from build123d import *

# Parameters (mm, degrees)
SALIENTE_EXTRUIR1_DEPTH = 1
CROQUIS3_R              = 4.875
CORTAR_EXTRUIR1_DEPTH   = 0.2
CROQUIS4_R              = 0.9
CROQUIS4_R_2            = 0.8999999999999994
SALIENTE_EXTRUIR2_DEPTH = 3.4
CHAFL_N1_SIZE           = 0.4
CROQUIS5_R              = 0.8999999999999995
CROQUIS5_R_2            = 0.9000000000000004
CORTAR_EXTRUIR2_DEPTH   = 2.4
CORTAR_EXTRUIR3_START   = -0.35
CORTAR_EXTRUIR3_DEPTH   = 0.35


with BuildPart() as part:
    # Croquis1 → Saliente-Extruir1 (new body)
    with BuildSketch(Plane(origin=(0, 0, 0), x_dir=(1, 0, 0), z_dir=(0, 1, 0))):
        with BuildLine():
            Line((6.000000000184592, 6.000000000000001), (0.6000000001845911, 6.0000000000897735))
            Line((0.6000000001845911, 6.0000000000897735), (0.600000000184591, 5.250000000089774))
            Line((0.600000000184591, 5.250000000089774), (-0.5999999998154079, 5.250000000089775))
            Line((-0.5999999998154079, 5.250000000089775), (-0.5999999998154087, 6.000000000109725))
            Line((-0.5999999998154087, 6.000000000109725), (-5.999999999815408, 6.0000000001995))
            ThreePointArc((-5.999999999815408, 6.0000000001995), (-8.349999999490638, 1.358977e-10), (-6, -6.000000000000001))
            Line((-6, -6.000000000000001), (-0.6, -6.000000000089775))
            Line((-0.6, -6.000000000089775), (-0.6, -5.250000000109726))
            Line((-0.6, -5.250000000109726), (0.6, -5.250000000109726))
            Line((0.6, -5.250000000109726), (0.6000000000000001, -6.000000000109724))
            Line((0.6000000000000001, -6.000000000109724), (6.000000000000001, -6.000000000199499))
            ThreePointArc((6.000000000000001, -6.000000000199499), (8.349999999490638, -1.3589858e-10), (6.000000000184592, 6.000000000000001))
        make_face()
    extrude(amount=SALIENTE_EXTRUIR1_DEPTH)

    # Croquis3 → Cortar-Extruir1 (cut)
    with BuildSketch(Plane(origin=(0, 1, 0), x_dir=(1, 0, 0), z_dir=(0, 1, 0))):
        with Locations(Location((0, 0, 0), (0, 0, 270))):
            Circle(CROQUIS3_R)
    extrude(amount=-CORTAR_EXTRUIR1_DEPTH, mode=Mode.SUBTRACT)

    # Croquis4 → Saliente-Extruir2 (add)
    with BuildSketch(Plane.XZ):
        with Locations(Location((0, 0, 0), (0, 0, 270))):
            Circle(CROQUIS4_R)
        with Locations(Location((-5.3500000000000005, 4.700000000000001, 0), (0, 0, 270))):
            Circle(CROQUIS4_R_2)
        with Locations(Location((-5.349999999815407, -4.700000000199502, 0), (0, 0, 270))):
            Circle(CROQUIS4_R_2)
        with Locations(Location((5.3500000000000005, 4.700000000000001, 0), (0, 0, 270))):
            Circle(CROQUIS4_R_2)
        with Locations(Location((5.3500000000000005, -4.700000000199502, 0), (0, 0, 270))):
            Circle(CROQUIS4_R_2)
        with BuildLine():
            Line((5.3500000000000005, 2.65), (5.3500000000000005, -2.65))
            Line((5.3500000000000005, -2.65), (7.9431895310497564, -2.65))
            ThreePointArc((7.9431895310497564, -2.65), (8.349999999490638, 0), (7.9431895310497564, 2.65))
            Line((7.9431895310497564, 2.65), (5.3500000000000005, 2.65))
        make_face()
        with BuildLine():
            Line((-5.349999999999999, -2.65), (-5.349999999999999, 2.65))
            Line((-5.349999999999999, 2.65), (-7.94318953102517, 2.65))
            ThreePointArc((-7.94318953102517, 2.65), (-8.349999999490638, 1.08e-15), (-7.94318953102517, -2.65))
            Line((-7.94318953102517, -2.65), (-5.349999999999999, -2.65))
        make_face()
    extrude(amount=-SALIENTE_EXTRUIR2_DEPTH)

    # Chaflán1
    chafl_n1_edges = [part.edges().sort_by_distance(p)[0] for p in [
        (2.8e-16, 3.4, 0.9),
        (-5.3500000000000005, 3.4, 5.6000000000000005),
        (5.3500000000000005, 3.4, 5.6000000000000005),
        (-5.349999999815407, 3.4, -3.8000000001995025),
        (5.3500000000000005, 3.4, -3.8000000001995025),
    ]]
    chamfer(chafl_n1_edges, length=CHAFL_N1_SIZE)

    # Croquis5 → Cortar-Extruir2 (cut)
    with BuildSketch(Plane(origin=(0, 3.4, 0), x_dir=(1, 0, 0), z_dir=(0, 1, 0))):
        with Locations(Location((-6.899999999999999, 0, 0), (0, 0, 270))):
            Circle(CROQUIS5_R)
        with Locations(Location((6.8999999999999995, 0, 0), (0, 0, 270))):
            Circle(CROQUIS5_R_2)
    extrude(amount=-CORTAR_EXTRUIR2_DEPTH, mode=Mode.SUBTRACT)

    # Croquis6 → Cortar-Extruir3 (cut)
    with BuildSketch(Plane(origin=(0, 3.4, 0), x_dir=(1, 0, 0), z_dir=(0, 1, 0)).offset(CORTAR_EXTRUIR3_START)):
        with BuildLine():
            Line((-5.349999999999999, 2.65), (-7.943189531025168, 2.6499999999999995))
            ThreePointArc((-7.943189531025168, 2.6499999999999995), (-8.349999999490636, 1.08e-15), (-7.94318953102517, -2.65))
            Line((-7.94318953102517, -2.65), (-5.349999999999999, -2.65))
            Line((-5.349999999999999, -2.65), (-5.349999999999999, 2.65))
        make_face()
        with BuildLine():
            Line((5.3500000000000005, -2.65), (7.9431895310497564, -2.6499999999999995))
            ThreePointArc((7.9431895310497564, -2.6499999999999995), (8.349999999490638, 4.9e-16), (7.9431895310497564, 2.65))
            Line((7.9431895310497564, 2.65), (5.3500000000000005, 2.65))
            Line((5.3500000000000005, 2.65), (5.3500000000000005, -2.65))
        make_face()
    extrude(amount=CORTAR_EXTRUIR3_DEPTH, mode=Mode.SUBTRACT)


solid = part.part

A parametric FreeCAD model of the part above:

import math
import FreeCAD as App
import Part
import Sketcher

V = App.Vector


def edges_at(feature, points):
    """Names of the edges that pass closest to the given points."""
    edges = feature.Shape.Edges
    near = lambda p: min(range(len(edges)), key=lambda i: edges[i].distToShape(Part.Vertex(*p))[0])
    return sorted({f"Edge{near(p) + 1}" for p in points})

doc = App.newDocument("Part")
params = doc.addObject("Spreadsheet::Sheet", "Params")
for row, (alias, value) in enumerate([
    ("sketch1_width", "5.4 mm"),
    ("sketch1_width2", "1.2 mm"),
    ("sketch1_height", "0.75 mm"),
    ("pad1_length", "1 mm"),
    ("sketch2_diameter", "9.75 mm"),
    ("pocket1_length", "0.2 mm"),
    ("sketch3_diameter", "1.8 mm"),
    ("sketch3_height", "5.3 mm"),
    ("pad2_length", "3.4 mm"),
    ("chamfer_size", "0.4 mm"),
    ("sketch4_diameter", "1.8 mm"),
    ("pocket2_length", "2.4 mm"),
    ("sketch5_height", "5.3 mm"),
    ("pocket3_length", "0.35 mm"),
], start=1):
    params.set(f"A{row}", alias)
    params.set(f"B{row}", "=" + value)
    params.setAlias(f"B{row}", alias)

body = doc.addObject("PartDesign::Body", "Body")

# Sketch on XZ plane
sketch1 = doc.addObject("Sketcher::SketchObject", "Sketch")
body.addObject(sketch1)
sketch1.AttachmentSupport = (doc.XZ_Plane, [""])
sketch1.MapMode = "FlatFace"
sketch1.addGeometry([
    Part.LineSegment(V(6, -6, 0), V(0.6, -6, 0)),  # 0
    Part.LineSegment(V(0.6, -6, 0), V(0.6, -5.25, 0)),  # 1
    Part.LineSegment(V(0.6, -5.25, 0), V(-0.6, -5.25, 0)),  # 2
    Part.LineSegment(V(-0.6, -5.25, 0), V(-0.6, -6, 0)),  # 3
    Part.LineSegment(V(-0.6, -6, 0), V(-6, -6, 0)),  # 4
    Part.ArcOfCircle(Part.Circle(V(0.484574, 0, 0), V(0, 0, 1), 8.834574), math.radians(137.222754), math.radians(222.777246)),  # 5
    Part.LineSegment(V(-6, 6, 0), V(-0.6, 6, 0)),  # 6
    Part.LineSegment(V(-0.6, 6, 0), V(-0.6, 5.25, 0)),  # 7
    Part.LineSegment(V(-0.6, 5.25, 0), V(0.6, 5.25, 0)),  # 8
    Part.LineSegment(V(0.6, 5.25, 0), V(0.6, 6, 0)),  # 9
    Part.LineSegment(V(0.6, 6, 0), V(6, 6, 0)),  # 10
    Part.ArcOfCircle(Part.Circle(V(-0.484574, 0, 0), V(0, 0, 1), 8.834574), math.radians(-42.777246), math.radians(42.777246)),  # 11
], False)
sketch1.addConstraint([
    Sketcher.Constraint("Coincident", 0, 2, 1, 1),
    Sketcher.Constraint("Coincident", 1, 2, 2, 1),
    Sketcher.Constraint("Coincident", 2, 2, 3, 1),
    Sketcher.Constraint("Coincident", 3, 2, 4, 1),
    Sketcher.Constraint("Coincident", 4, 2, 5, 2),
    Sketcher.Constraint("Coincident", 5, 1, 6, 1),
    Sketcher.Constraint("Coincident", 6, 2, 7, 1),
    Sketcher.Constraint("Coincident", 7, 2, 8, 1),
    Sketcher.Constraint("Coincident", 8, 2, 9, 1),
    Sketcher.Constraint("Coincident", 9, 2, 10, 1),
    Sketcher.Constraint("Coincident", 10, 2, 11, 2),
    Sketcher.Constraint("Coincident", 11, 1, 0, 1),
    Sketcher.Constraint("Horizontal", 0),
    Sketcher.Constraint("Vertical", 1),
    Sketcher.Constraint("Horizontal", 2),
    Sketcher.Constraint("Vertical", 3),
    Sketcher.Constraint("Horizontal", 4),
    Sketcher.Constraint("Horizontal", 6),
    Sketcher.Constraint("Vertical", 7),
    Sketcher.Constraint("Horizontal", 8),
    Sketcher.Constraint("Vertical", 9),
    Sketcher.Constraint("Horizontal", 10),
    Sketcher.Constraint("Equal", 5, 11),
    Sketcher.Constraint("Symmetric", 5, 3, 11, 3, -1, 1),
    Sketcher.Constraint("Symmetric", 0, 2, 6, 2, -1, 1),
    Sketcher.Constraint("Symmetric", 2, 2, 8, 2, -1, 1),
    Sketcher.Constraint("Symmetric", 0, 2, 3, 2, -2),
    Sketcher.Constraint("Symmetric", 5, 1, 10, 2, -2),
    Sketcher.Constraint("DistanceX", 0, 2, 0, 1, 5.4),
    Sketcher.Constraint("DistanceX", 2, 2, 2, 1, 1.2),
    Sketcher.Constraint("DistanceY", 0, 2, -1, 1, 6.0),
    Sketcher.Constraint("DistanceY", 1, 1, 1, 2, 0.75),
    Sketcher.Constraint("Radius", 5, 8.834574),
])
sketch1.setExpression("Constraints[28]", "Params.sketch1_width")
sketch1.setExpression("Constraints[29]", "Params.sketch1_width2")
sketch1.setExpression("Constraints[31]", "Params.sketch1_height")
pad1 = doc.addObject("PartDesign::Pad", "Pad")
body.addObject(pad1)
pad1.Profile = sketch1
pad1.setExpression("Length", "Params.pad1_length")
pad1.Reversed = True

# Sketch on XZ plane
sketch2 = doc.addObject("Sketcher::SketchObject", "Sketch001")
body.addObject(sketch2)
sketch2.AttachmentSupport = (doc.XZ_Plane, [""])
sketch2.MapMode = "FlatFace"
sketch2.AttachmentOffset = App.Placement(V(0, 0, -1), App.Rotation())
sketch2.addGeometry(Part.Circle(V(0, 0, 0), V(0, 0, 1), 4.875), False)
sketch2.addConstraint([
    Sketcher.Constraint("Coincident", 0, 3, -1, 1),
    Sketcher.Constraint("Diameter", 0, 9.75),
])
sketch2.setExpression("Constraints[1]", "Params.sketch2_diameter")
pocket1 = doc.addObject("PartDesign::Pocket", "Pocket")
body.addObject(pocket1)
pocket1.Profile = sketch2
pocket1.setExpression("Length", "Params.pocket1_length")
pocket1.Reversed = True

# Sketch on XZ plane
sketch3 = doc.addObject("Sketcher::SketchObject", "Sketch002")
body.addObject(sketch3)
sketch3.AttachmentSupport = (doc.XZ_Plane, [""])
sketch3.MapMode = "FlatFace"
sketch3.addGeometry([
    Part.Circle(V(0, 0, 0), V(0, 0, 1), 0.9),  # 0
    Part.Circle(V(-5.35, 4.7, 0), V(0, 0, 1), 0.9),  # 1
    Part.Circle(V(-5.35, -4.7, 0), V(0, 0, 1), 0.9),  # 2
    Part.Circle(V(5.35, 4.7, 0), V(0, 0, 1), 0.9),  # 3
    Part.Circle(V(5.35, -4.7, 0), V(0, 0, 1), 0.9),  # 4
    Part.LineSegment(V(5.35, 2.65, 0), V(5.35, -2.65, 0)),  # 5
    Part.LineSegment(V(5.35, -2.65, 0), V(7.94319, -2.65, 0)),  # 6
    Part.ArcOfCircle(Part.Circle(V(-0.484574, 0, 0), V(0, 0, 1), 8.834574), math.radians(-17.455072), math.radians(17.455072)),  # 7
    Part.LineSegment(V(7.94319, 2.65, 0), V(5.35, 2.65, 0)),  # 8
    Part.LineSegment(V(-5.35, -2.65, 0), V(-5.35, 2.65, 0)),  # 9
    Part.LineSegment(V(-5.35, 2.65, 0), V(-7.94319, 2.65, 0)),  # 10
    Part.ArcOfCircle(Part.Circle(V(0.484574, 0, 0), V(0, 0, 1), 8.834574), math.radians(162.544928), math.radians(197.455072)),  # 11
    Part.LineSegment(V(-7.94319, -2.65, 0), V(-5.35, -2.65, 0)),  # 12
], False)
sketch3.addConstraint([
    Sketcher.Constraint("Coincident", 5, 2, 6, 1),
    Sketcher.Constraint("Coincident", 6, 2, 7, 1),
    Sketcher.Constraint("Coincident", 7, 2, 8, 1),
    Sketcher.Constraint("Coincident", 8, 2, 5, 1),
    Sketcher.Constraint("Coincident", 9, 2, 10, 1),
    Sketcher.Constraint("Coincident", 10, 2, 11, 1),
    Sketcher.Constraint("Coincident", 11, 2, 12, 1),
    Sketcher.Constraint("Coincident", 12, 2, 9, 1),
    Sketcher.Constraint("Vertical", 5),
    Sketcher.Constraint("Horizontal", 6),
    Sketcher.Constraint("Horizontal", 8),
    Sketcher.Constraint("Vertical", 9),
    Sketcher.Constraint("Horizontal", 10),
    Sketcher.Constraint("Horizontal", 12),
    Sketcher.Constraint("Coincident", 0, 3, -1, 1),
    Sketcher.Constraint("Equal", 0, 1),
    Sketcher.Constraint("Equal", 1, 2),
    Sketcher.Constraint("Equal", 2, 3),
    Sketcher.Constraint("Equal", 3, 4),
    Sketcher.Constraint("Equal", 7, 11),
    Sketcher.Constraint("Symmetric", 2, 3, 3, 3, -1, 1),
    Sketcher.Constraint("Symmetric", 1, 3, 4, 3, -1, 1),
    Sketcher.Constraint("Symmetric", 7, 3, 11, 3, -1, 1),
    Sketcher.Constraint("Symmetric", 5, 2, 9, 2, -1, 1),
    Sketcher.Constraint("Symmetric", 1, 3, 3, 3, -2),
    Sketcher.Constraint("Symmetric", 7, 2, 10, 2, -2),
    Sketcher.Constraint("Horizontal", 6, 2, 11, 2),
    Sketcher.Constraint("Vertical", 4, 3, 5, 2),
    Sketcher.Constraint("Diameter", 0, 1.8),
    Sketcher.Constraint("DistanceY", 5, 2, 5, 1, 5.3),
    Sketcher.Constraint("DistanceY", -1, 1, 1, 3, 4.7),
    Sketcher.Constraint("DistanceX", 1, 3, 3, 3, 10.7),
    Sketcher.Constraint("Radius", 7, 8.834574),
    Sketcher.Constraint("DistanceX", 6, 1, 6, 2, 2.59319),
])
sketch3.setExpression("Constraints[28]", "Params.sketch3_diameter")
sketch3.setExpression("Constraints[29]", "Params.sketch3_height")
pad2 = doc.addObject("PartDesign::Pad", "Pad001")
body.addObject(pad2)
pad2.Profile = sketch3
pad2.setExpression("Length", "Params.pad2_length")
pad2.Reversed = True
doc.recompute()

chamfer = doc.addObject("PartDesign::Chamfer", "Chamfer")
body.addObject(chamfer)
chamfer.Base = (pad2, edges_at(pad2, [
    (0, 3.4, 0.9),
    (-5.35, 3.4, 5.6),
    (5.35, 3.4, 5.6),
    (-5.35, 3.4, -3.8),
    (5.35, 3.4, -3.8),
]))
chamfer.setExpression("Size", "Params.chamfer_size")

# Sketch on XZ plane
sketch4 = doc.addObject("Sketcher::SketchObject", "Sketch003")
body.addObject(sketch4)
sketch4.AttachmentSupport = (doc.XZ_Plane, [""])
sketch4.MapMode = "FlatFace"
sketch4.AttachmentOffset = App.Placement(V(0, 0, -3.4), App.Rotation())
sketch4.addGeometry([
    Part.Circle(V(-6.9, 0, 0), V(0, 0, 1), 0.9),
    Part.Circle(V(6.9, 0, 0), V(0, 0, 1), 0.9),
], False)
sketch4.addConstraint([
    Sketcher.Constraint("Equal", 0, 1),
    Sketcher.Constraint("Symmetric", 0, 3, 1, 3, -1, 1),
    Sketcher.Constraint("PointOnObject", 0, 3, -1),
    Sketcher.Constraint("Diameter", 0, 1.8),
    Sketcher.Constraint("DistanceX", 0, 3, -1, 1, 6.9),
])
sketch4.setExpression("Constraints[3]", "Params.sketch4_diameter")
pocket2 = doc.addObject("PartDesign::Pocket", "Pocket001")
body.addObject(pocket2)
pocket2.Profile = sketch4
pocket2.setExpression("Length", "Params.pocket2_length")
pocket2.Reversed = True

# Sketch on XZ plane
sketch5 = doc.addObject("Sketcher::SketchObject", "Sketch004")
body.addObject(sketch5)
sketch5.AttachmentSupport = (doc.XZ_Plane, [""])
sketch5.MapMode = "FlatFace"
sketch5.AttachmentOffset = App.Placement(V(0, 0, -3.05), App.Rotation())
sketch5.addGeometry([
    Part.LineSegment(V(-5.35, -2.65, 0), V(-7.94319, -2.65, 0)),  # 0
    Part.ArcOfCircle(Part.Circle(V(0.484574, 0, 0), V(0, 0, 1), 8.834574), math.radians(162.544928), math.radians(197.455072)),  # 1
    Part.LineSegment(V(-7.94319, 2.65, 0), V(-5.35, 2.65, 0)),  # 2
    Part.LineSegment(V(-5.35, 2.65, 0), V(-5.35, -2.65, 0)),  # 3
    Part.LineSegment(V(5.35, 2.65, 0), V(7.94319, 2.65, 0)),  # 4
    Part.ArcOfCircle(Part.Circle(V(-0.484574, 0, 0), V(0, 0, 1), 8.834574), math.radians(-17.455072), math.radians(17.455072)),  # 5
    Part.LineSegment(V(7.94319, -2.65, 0), V(5.35, -2.65, 0)),  # 6
    Part.LineSegment(V(5.35, -2.65, 0), V(5.35, 2.65, 0)),  # 7
], False)
sketch5.addConstraint([
    Sketcher.Constraint("Coincident", 0, 2, 1, 2),
    Sketcher.Constraint("Coincident", 1, 1, 2, 1),
    Sketcher.Constraint("Coincident", 2, 2, 3, 1),
    Sketcher.Constraint("Coincident", 3, 2, 0, 1),
    Sketcher.Constraint("Coincident", 4, 2, 5, 2),
    Sketcher.Constraint("Coincident", 5, 1, 6, 1),
    Sketcher.Constraint("Coincident", 6, 2, 7, 1),
    Sketcher.Constraint("Coincident", 7, 2, 4, 1),
    Sketcher.Constraint("Horizontal", 0),
    Sketcher.Constraint("Horizontal", 2),
    Sketcher.Constraint("Vertical", 3),
    Sketcher.Constraint("Horizontal", 4),
    Sketcher.Constraint("Horizontal", 6),
    Sketcher.Constraint("Vertical", 7),
    Sketcher.Constraint("Equal", 1, 5),
    Sketcher.Constraint("Symmetric", 1, 3, 5, 3, -1, 1),
    Sketcher.Constraint("Symmetric", 2, 2, 6, 2, -1, 1),
    Sketcher.Constraint("Symmetric", 1, 1, 4, 2, -2),
    Sketcher.Constraint("Horizontal", 3, 2, 5, 1),
    Sketcher.Constraint("DistanceY", 3, 2, 3, 1, 5.3),
    Sketcher.Constraint("DistanceX", 3, 2, 6, 2, 10.7),
    Sketcher.Constraint("Radius", 1, 8.834574),
    Sketcher.Constraint("DistanceX", 0, 2, 0, 1, 2.59319),
])
sketch5.setExpression("Constraints[19]", "Params.sketch5_height")
pocket3 = doc.addObject("PartDesign::Pocket", "Pocket002")
body.addObject(pocket3)
pocket3.Profile = sketch5
pocket3.setExpression("Length", "Params.pocket3_length")

doc.recompute()
